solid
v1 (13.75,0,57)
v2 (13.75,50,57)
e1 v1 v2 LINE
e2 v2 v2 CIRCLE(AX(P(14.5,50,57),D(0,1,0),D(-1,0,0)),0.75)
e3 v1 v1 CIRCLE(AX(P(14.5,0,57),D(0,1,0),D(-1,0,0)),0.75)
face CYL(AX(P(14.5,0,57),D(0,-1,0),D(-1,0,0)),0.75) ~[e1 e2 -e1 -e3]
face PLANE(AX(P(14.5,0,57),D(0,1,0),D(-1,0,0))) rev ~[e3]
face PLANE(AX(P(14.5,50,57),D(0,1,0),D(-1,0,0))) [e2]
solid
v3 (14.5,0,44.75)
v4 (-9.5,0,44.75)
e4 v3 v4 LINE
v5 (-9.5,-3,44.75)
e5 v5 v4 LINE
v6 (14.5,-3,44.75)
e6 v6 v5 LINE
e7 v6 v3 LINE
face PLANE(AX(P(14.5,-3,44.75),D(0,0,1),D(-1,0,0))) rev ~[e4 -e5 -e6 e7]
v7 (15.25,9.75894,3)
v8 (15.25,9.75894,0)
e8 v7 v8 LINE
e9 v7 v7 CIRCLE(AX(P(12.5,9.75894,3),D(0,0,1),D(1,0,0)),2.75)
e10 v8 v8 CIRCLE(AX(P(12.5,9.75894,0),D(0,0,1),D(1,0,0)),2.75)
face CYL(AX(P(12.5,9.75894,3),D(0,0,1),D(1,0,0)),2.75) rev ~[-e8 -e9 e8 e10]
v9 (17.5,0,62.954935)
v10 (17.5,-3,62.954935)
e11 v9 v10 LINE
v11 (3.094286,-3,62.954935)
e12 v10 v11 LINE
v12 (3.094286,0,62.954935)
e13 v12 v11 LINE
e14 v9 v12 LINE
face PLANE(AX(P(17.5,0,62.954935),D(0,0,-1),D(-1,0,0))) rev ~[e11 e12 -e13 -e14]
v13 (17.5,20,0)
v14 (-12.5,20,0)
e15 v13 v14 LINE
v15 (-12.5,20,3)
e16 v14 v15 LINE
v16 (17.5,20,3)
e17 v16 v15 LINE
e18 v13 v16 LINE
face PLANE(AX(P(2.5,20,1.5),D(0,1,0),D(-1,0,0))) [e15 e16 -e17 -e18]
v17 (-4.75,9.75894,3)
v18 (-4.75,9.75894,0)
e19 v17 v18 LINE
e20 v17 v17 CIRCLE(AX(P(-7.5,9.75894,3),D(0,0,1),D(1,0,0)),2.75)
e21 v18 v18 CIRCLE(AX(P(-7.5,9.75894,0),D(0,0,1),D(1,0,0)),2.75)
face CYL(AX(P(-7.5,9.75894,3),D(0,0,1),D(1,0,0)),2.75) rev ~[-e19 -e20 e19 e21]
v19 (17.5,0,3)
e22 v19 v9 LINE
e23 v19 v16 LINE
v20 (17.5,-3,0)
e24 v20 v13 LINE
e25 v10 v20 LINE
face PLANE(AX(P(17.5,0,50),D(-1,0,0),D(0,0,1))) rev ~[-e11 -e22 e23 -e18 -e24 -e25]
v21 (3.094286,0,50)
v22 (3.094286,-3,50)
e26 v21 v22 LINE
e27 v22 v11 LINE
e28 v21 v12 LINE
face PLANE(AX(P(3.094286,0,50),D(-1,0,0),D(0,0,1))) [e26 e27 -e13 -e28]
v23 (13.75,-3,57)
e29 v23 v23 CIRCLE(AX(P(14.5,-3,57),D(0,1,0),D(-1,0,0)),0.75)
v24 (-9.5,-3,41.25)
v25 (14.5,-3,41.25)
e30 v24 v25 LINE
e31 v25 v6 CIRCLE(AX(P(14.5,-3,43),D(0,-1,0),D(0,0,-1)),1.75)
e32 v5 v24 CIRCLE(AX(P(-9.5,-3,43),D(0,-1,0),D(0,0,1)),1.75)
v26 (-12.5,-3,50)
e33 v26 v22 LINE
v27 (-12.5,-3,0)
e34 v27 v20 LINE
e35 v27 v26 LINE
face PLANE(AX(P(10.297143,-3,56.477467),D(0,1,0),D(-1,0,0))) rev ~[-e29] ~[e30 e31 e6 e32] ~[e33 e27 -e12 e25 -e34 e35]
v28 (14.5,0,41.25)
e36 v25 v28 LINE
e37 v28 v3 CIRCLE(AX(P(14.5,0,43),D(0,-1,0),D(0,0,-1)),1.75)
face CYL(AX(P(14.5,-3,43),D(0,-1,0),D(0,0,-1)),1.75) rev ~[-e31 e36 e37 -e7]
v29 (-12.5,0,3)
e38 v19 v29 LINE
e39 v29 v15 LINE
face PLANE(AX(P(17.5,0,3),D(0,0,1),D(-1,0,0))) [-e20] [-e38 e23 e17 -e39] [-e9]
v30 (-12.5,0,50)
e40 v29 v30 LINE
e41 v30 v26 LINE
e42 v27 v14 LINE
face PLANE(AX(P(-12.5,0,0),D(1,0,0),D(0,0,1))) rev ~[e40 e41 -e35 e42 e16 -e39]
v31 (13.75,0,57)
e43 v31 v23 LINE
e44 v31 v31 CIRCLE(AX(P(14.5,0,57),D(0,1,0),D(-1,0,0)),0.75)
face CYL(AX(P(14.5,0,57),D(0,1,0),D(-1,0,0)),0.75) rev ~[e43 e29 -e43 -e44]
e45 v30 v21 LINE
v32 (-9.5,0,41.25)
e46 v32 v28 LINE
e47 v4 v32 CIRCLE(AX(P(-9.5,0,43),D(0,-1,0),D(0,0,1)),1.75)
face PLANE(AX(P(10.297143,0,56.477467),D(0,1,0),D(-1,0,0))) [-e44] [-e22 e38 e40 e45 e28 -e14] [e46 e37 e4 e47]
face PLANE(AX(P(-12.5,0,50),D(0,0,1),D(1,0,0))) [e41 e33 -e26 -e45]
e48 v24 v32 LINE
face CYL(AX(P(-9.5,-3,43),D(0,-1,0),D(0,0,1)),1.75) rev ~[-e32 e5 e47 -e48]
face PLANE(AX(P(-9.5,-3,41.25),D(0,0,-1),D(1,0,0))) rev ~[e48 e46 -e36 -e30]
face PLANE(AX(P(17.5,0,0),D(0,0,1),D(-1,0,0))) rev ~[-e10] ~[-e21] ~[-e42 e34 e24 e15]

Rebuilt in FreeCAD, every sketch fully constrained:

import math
import FreeCAD as App
import Part
import Sketcher
from FreeCAD import Vector
Q = App.Units.Quantity


def add_polygon(sketch, points):
    """Adds a closed chain of lines whose ends are joined by coincident constraints."""
    first, n = sketch.GeometryCount, len(points)
    for a, b in zip(points, points[1:] + points[:1]):
        sketch.addGeometry(Part.LineSegment(App.Vector(*a, 0), App.Vector(*b, 0)), False)
    for i in range(n):
        sketch.addConstraint(Sketcher.Constraint("Coincident", first + i, 2, first + (i + 1) % n, 1))

doc = App.newDocument("Part")
params = doc.addObject("Spreadsheet::Sheet", "Params")
for row, (alias, value) in enumerate([
    ("sketch1_width", "30 mm"),
    ("sketch1_height", "50 mm"),
    ("pad1_length", "3 mm"),
    ("sketch2_width", "30 mm"),
    ("sketch2_height", "3 mm"),
    ("pad2_length", "20 mm"),
    ("sketch3_diameter", "5.5 mm"),
    ("sketch4_width", "24 mm"),
    ("sketch4_radius", "1.75 mm"),
    ("sketch5_diameter", "1.5 mm"),
    ("pad3_length", "3 mm"),
    ("sketch6_diameter", "1.5 mm"),
    ("pad4_length", "50 mm"),
], start=1):
    params.set(f"A{row}", alias)
    params.set(f"B{row}", "=" + value)
    params.setAlias(f"B{row}", alias)

body = doc.addObject("PartDesign::Body", "Body")

# Sketch on XZ plane
sketch1 = body.newObject("Sketcher::SketchObject", "Sketch")
sketch1.AttachmentSupport = (doc.getObject("XZ_Plane"), [""])
sketch1.MapMode = "FlatFace"
add_polygon(sketch1, [(-12, 50), (-12, 0), (18, 0), (18, 50)])  # lines 0-3
sketch1.addConstraint(Sketcher.Constraint("Vertical", 0))
sketch1.addConstraint(Sketcher.Constraint("Horizontal", 1))
sketch1.addConstraint(Sketcher.Constraint("Vertical", 2))
sketch1.addConstraint(Sketcher.Constraint("Horizontal", 3))
sketch1.addConstraint(Sketcher.Constraint("PointOnObject", 0, 2, -1))
sketch1.addConstraint(Sketcher.Constraint("DistanceX", 1, 1, 1, 2, Q("30 mm")))
sketch1.addConstraint(Sketcher.Constraint("DistanceY", 0, 2, 0, 1, Q("50 mm")))
sketch1.addConstraint(Sketcher.Constraint("DistanceX", 0, 2, -1, 1, Q("12.5 mm")))
sketch1.setExpression("Constraints[9]", "Params.sketch1_width")
sketch1.setExpression("Constraints[10]", "Params.sketch1_height")
pad1 = body.newObject("PartDesign::Pad", "Pad")
pad1.Profile = sketch1
pad1.setExpression("Length", "Params.pad1_length")

# Sketch on XZ plane
sketch2 = body.newObject("Sketcher::SketchObject", "Sketch001")
sketch2.AttachmentSupport = (doc.getObject("XZ_Plane"), [""])
sketch2.MapMode = "FlatFace"
add_polygon(sketch2, [(17.5, 3), (17.5, 0), (-12.5, 0), (-12.5, 3)])  # lines 0-3
sketch2.addConstraint(Sketcher.Constraint("Vertical", 0))
sketch2.addConstraint(Sketcher.Constraint("Horizontal", 1))
sketch2.addConstraint(Sketcher.Constraint("Vertical", 2))
sketch2.addConstraint(Sketcher.Constraint("Horizontal", 3))
sketch2.addConstraint(Sketcher.Constraint("PointOnObject", 0, 2, -1))
sketch2.addConstraint(Sketcher.Constraint("DistanceX", 1, 2, 1, 1, Q("30 mm")))
sketch2.addConstraint(Sketcher.Constraint("DistanceY", 0, 2, 0, 1, Q("3 mm")))
sketch2.addConstraint(Sketcher.Constraint("DistanceX", -1, 1, 0, 2, Q("17.5 mm")))
sketch2.setExpression("Constraints[9]", "Params.sketch2_width")
sketch2.setExpression("Constraints[10]", "Params.sketch2_height")
pad2 = body.newObject("PartDesign::Pad", "Pad001")
pad2.Profile = sketch2
pad2.setExpression("Length", "Params.pad2_length")
pad2.Reversed = True

# Sketch on XY plane
sketch3 = body.newObject("Sketcher::SketchObject", "Sketch002")
sketch3.AttachmentSupport = (doc.getObject("XY_Plane"), [""])
sketch3.MapMode = "FlatFace"
sketch3.AttachmentOffset = App.Placement(Vector(0, 0, 3), App.Rotation())
sketch3.addGeometry(Part.Circle(Vector(12.5, 9.8, 0), Vector(0, 0, 1), 2.8), False)
sketch3.addGeometry(Part.Circle(Vector(-7.5, 9.8, 0), Vector(0, 0, 1), 2.8), False)
sketch3.addConstraint(Sketcher.Constraint("Equal", 0, 1))
sketch3.addConstraint(Sketcher.Constraint("Horizontal", 0, 3, 1, 3))
sketch3.addConstraint(Sketcher.Constraint("Diameter", 0, Q("5.5 mm")))
sketch3.addConstraint(Sketcher.Constraint("DistanceX", 1, 3, 0, 3, Q("20 mm")))
sketch3.addConstraint(Sketcher.Constraint("DistanceX", -1, 1, 0, 3, Q("12.5 mm")))
sketch3.addConstraint(Sketcher.Constraint("DistanceY", -1, 1, 0, 3, Q("9.75894 mm")))
sketch3.setExpression("Constraints[2]", "Params.sketch3_diameter")
pocket1 = body.newObject("PartDesign::Pocket", "Pocket")
pocket1.Profile = sketch3
pocket1.Type = "ThroughAll"

# Sketch on XZ plane
sketch4 = body.newObject("Sketcher::SketchObject", "Sketch003")
sketch4.AttachmentSupport = (doc.getObject("XZ_Plane"), [""])
sketch4.MapMode = "FlatFace"
sketch4.AttachmentOffset = App.Placement(Vector(0, 0, 3), App.Rotation())
sketch4.addGeometry(Part.LineSegment(Vector(14.5, 44.8, 0), Vector(-9.5, 44.8, 0)), False)
sketch4.addGeometry(Part.ArcOfCircle(Part.Circle(Vector(-9.5, 43, 0), Vector(0, 0, 1), 1.8), math.radians(90), math.radians(270)), False)
sketch4.addGeometry(Part.LineSegment(Vector(-9.5, 41.2, 0), Vector(14.5, 41.2, 0)), False)
sketch4.addGeometry(Part.ArcOfCircle(Part.Circle(Vector(14.5, 43, 0), Vector(0, 0, 1), 1.8), math.radians(-90), math.radians(90)), False)
sketch4.addConstraint(Sketcher.Constraint("Tangent", 0, 2, 1, 1))
sketch4.addConstraint(Sketcher.Constraint("Tangent", 1, 2, 2, 1))
sketch4.addConstraint(Sketcher.Constraint("Tangent", 2, 2, 3, 1))
sketch4.addConstraint(Sketcher.Constraint("Tangent", 3, 2, 0, 1))
sketch4.addConstraint(Sketcher.Constraint("Horizontal", 0))
sketch4.addConstraint(Sketcher.Constraint("Horizontal", 2))
sketch4.addConstraint(Sketcher.Constraint("DistanceX", 0, 2, 0, 1, Q("24 mm")))
sketch4.addConstraint(Sketcher.Constraint("Radius", 1, Q("1.75 mm")))
sketch4.addConstraint(Sketcher.Constraint("DistanceY", -1, 1, 1, 3, Q("43 mm")))
sketch4.addConstraint(Sketcher.Constraint("DistanceX", 1, 3, -1, 1, Q("9.5 mm")))
sketch4.setExpression("Constraints[6]", "Params.sketch4_width")
sketch4.setExpression("Constraints[7]", "Params.sketch4_radius")
pocket2 = body.newObject("PartDesign::Pocket", "Pocket001")
pocket2.Profile = sketch4
pocket2.Type = "ThroughAll"

# Sketch on XZ plane
sketch5 = body.newObject("Sketcher::SketchObject", "Sketch004")
sketch5.AttachmentSupport = (doc.getObject("XZ_Plane"), [""])
sketch5.MapMode = "FlatFace"
add_polygon(sketch5, [(17.5, 63), (17.5, 50), (3.1, 50), (3.1, 63)])  # lines 0-3
sketch5.addGeometry(Part.Circle(Vector(14.5, 57, 0), Vector(0, 0, 1), 0.8), False)  # 4
sketch5.addConstraint(Sketcher.Constraint("Vertical", 0))
sketch5.addConstraint(Sketcher.Constraint("Horizontal", 1))
sketch5.addConstraint(Sketcher.Constraint("Vertical", 2))
sketch5.addConstraint(Sketcher.Constraint("Horizontal", 3))
sketch5.addConstraint(Sketcher.Constraint("Diameter", 4, Q("1.5 mm")))
sketch5.addConstraint(Sketcher.Constraint("DistanceY", -1, 1, 4, 3, Q("57 mm")))
sketch5.addConstraint(Sketcher.Constraint("DistanceY", -1, 1, 0, 2, Q("50 mm")))
sketch5.addConstraint(Sketcher.Constraint("DistanceX", 4, 3, 0, 2, Q("3 mm")))
sketch5.addConstraint(Sketcher.Constraint("DistanceX", -1, 1, 4, 3, Q("14.5 mm")))
sketch5.addConstraint(Sketcher.Constraint("DistanceX", 1, 2, 1, 1, Q("14.405714 mm")))
sketch5.addConstraint(Sketcher.Constraint("DistanceY", 0, 2, 0, 1, Q("12.954935 mm")))
sketch5.setExpression("Constraints[8]", "Params.sketch5_diameter")
pad3 = body.newObject("PartDesign::Pad", "Pad002")
pad3.Profile = sketch5
pad3.setExpression("Length", "Params.pad3_length")
body2 = doc.addObject("PartDesign::Body", "Body001")

# Sketch on XZ plane
sketch6 = body2.newObject("Sketcher::SketchObject", "Sketch005")
sketch6.AttachmentSupport = (doc.getObject("XZ_Plane001"), [""])
sketch6.MapMode = "FlatFace"
sketch6.addGeometry(Part.Circle(Vector(14.5, 57, 0), Vector(0, 0, 1), 0.8), False)
sketch6.addConstraint(Sketcher.Constraint("Diameter", 0, Q("1.5 mm")))
sketch6.addConstraint(Sketcher.Constraint("DistanceY", -1, 1, 0, 3, Q("57 mm")))
sketch6.addConstraint(Sketcher.Constraint("DistanceX", -1, 1, 0, 3, Q("14.5 mm")))
sketch6.setExpression("Constraints[0]", "Params.sketch6_diameter")
pad4 = body2.newObject("PartDesign::Pad", "Pad003")
pad4.Profile = sketch6
pad4.setExpression("Length", "Params.pad4_length")
pad4.Reversed = True

doc.recompute()
